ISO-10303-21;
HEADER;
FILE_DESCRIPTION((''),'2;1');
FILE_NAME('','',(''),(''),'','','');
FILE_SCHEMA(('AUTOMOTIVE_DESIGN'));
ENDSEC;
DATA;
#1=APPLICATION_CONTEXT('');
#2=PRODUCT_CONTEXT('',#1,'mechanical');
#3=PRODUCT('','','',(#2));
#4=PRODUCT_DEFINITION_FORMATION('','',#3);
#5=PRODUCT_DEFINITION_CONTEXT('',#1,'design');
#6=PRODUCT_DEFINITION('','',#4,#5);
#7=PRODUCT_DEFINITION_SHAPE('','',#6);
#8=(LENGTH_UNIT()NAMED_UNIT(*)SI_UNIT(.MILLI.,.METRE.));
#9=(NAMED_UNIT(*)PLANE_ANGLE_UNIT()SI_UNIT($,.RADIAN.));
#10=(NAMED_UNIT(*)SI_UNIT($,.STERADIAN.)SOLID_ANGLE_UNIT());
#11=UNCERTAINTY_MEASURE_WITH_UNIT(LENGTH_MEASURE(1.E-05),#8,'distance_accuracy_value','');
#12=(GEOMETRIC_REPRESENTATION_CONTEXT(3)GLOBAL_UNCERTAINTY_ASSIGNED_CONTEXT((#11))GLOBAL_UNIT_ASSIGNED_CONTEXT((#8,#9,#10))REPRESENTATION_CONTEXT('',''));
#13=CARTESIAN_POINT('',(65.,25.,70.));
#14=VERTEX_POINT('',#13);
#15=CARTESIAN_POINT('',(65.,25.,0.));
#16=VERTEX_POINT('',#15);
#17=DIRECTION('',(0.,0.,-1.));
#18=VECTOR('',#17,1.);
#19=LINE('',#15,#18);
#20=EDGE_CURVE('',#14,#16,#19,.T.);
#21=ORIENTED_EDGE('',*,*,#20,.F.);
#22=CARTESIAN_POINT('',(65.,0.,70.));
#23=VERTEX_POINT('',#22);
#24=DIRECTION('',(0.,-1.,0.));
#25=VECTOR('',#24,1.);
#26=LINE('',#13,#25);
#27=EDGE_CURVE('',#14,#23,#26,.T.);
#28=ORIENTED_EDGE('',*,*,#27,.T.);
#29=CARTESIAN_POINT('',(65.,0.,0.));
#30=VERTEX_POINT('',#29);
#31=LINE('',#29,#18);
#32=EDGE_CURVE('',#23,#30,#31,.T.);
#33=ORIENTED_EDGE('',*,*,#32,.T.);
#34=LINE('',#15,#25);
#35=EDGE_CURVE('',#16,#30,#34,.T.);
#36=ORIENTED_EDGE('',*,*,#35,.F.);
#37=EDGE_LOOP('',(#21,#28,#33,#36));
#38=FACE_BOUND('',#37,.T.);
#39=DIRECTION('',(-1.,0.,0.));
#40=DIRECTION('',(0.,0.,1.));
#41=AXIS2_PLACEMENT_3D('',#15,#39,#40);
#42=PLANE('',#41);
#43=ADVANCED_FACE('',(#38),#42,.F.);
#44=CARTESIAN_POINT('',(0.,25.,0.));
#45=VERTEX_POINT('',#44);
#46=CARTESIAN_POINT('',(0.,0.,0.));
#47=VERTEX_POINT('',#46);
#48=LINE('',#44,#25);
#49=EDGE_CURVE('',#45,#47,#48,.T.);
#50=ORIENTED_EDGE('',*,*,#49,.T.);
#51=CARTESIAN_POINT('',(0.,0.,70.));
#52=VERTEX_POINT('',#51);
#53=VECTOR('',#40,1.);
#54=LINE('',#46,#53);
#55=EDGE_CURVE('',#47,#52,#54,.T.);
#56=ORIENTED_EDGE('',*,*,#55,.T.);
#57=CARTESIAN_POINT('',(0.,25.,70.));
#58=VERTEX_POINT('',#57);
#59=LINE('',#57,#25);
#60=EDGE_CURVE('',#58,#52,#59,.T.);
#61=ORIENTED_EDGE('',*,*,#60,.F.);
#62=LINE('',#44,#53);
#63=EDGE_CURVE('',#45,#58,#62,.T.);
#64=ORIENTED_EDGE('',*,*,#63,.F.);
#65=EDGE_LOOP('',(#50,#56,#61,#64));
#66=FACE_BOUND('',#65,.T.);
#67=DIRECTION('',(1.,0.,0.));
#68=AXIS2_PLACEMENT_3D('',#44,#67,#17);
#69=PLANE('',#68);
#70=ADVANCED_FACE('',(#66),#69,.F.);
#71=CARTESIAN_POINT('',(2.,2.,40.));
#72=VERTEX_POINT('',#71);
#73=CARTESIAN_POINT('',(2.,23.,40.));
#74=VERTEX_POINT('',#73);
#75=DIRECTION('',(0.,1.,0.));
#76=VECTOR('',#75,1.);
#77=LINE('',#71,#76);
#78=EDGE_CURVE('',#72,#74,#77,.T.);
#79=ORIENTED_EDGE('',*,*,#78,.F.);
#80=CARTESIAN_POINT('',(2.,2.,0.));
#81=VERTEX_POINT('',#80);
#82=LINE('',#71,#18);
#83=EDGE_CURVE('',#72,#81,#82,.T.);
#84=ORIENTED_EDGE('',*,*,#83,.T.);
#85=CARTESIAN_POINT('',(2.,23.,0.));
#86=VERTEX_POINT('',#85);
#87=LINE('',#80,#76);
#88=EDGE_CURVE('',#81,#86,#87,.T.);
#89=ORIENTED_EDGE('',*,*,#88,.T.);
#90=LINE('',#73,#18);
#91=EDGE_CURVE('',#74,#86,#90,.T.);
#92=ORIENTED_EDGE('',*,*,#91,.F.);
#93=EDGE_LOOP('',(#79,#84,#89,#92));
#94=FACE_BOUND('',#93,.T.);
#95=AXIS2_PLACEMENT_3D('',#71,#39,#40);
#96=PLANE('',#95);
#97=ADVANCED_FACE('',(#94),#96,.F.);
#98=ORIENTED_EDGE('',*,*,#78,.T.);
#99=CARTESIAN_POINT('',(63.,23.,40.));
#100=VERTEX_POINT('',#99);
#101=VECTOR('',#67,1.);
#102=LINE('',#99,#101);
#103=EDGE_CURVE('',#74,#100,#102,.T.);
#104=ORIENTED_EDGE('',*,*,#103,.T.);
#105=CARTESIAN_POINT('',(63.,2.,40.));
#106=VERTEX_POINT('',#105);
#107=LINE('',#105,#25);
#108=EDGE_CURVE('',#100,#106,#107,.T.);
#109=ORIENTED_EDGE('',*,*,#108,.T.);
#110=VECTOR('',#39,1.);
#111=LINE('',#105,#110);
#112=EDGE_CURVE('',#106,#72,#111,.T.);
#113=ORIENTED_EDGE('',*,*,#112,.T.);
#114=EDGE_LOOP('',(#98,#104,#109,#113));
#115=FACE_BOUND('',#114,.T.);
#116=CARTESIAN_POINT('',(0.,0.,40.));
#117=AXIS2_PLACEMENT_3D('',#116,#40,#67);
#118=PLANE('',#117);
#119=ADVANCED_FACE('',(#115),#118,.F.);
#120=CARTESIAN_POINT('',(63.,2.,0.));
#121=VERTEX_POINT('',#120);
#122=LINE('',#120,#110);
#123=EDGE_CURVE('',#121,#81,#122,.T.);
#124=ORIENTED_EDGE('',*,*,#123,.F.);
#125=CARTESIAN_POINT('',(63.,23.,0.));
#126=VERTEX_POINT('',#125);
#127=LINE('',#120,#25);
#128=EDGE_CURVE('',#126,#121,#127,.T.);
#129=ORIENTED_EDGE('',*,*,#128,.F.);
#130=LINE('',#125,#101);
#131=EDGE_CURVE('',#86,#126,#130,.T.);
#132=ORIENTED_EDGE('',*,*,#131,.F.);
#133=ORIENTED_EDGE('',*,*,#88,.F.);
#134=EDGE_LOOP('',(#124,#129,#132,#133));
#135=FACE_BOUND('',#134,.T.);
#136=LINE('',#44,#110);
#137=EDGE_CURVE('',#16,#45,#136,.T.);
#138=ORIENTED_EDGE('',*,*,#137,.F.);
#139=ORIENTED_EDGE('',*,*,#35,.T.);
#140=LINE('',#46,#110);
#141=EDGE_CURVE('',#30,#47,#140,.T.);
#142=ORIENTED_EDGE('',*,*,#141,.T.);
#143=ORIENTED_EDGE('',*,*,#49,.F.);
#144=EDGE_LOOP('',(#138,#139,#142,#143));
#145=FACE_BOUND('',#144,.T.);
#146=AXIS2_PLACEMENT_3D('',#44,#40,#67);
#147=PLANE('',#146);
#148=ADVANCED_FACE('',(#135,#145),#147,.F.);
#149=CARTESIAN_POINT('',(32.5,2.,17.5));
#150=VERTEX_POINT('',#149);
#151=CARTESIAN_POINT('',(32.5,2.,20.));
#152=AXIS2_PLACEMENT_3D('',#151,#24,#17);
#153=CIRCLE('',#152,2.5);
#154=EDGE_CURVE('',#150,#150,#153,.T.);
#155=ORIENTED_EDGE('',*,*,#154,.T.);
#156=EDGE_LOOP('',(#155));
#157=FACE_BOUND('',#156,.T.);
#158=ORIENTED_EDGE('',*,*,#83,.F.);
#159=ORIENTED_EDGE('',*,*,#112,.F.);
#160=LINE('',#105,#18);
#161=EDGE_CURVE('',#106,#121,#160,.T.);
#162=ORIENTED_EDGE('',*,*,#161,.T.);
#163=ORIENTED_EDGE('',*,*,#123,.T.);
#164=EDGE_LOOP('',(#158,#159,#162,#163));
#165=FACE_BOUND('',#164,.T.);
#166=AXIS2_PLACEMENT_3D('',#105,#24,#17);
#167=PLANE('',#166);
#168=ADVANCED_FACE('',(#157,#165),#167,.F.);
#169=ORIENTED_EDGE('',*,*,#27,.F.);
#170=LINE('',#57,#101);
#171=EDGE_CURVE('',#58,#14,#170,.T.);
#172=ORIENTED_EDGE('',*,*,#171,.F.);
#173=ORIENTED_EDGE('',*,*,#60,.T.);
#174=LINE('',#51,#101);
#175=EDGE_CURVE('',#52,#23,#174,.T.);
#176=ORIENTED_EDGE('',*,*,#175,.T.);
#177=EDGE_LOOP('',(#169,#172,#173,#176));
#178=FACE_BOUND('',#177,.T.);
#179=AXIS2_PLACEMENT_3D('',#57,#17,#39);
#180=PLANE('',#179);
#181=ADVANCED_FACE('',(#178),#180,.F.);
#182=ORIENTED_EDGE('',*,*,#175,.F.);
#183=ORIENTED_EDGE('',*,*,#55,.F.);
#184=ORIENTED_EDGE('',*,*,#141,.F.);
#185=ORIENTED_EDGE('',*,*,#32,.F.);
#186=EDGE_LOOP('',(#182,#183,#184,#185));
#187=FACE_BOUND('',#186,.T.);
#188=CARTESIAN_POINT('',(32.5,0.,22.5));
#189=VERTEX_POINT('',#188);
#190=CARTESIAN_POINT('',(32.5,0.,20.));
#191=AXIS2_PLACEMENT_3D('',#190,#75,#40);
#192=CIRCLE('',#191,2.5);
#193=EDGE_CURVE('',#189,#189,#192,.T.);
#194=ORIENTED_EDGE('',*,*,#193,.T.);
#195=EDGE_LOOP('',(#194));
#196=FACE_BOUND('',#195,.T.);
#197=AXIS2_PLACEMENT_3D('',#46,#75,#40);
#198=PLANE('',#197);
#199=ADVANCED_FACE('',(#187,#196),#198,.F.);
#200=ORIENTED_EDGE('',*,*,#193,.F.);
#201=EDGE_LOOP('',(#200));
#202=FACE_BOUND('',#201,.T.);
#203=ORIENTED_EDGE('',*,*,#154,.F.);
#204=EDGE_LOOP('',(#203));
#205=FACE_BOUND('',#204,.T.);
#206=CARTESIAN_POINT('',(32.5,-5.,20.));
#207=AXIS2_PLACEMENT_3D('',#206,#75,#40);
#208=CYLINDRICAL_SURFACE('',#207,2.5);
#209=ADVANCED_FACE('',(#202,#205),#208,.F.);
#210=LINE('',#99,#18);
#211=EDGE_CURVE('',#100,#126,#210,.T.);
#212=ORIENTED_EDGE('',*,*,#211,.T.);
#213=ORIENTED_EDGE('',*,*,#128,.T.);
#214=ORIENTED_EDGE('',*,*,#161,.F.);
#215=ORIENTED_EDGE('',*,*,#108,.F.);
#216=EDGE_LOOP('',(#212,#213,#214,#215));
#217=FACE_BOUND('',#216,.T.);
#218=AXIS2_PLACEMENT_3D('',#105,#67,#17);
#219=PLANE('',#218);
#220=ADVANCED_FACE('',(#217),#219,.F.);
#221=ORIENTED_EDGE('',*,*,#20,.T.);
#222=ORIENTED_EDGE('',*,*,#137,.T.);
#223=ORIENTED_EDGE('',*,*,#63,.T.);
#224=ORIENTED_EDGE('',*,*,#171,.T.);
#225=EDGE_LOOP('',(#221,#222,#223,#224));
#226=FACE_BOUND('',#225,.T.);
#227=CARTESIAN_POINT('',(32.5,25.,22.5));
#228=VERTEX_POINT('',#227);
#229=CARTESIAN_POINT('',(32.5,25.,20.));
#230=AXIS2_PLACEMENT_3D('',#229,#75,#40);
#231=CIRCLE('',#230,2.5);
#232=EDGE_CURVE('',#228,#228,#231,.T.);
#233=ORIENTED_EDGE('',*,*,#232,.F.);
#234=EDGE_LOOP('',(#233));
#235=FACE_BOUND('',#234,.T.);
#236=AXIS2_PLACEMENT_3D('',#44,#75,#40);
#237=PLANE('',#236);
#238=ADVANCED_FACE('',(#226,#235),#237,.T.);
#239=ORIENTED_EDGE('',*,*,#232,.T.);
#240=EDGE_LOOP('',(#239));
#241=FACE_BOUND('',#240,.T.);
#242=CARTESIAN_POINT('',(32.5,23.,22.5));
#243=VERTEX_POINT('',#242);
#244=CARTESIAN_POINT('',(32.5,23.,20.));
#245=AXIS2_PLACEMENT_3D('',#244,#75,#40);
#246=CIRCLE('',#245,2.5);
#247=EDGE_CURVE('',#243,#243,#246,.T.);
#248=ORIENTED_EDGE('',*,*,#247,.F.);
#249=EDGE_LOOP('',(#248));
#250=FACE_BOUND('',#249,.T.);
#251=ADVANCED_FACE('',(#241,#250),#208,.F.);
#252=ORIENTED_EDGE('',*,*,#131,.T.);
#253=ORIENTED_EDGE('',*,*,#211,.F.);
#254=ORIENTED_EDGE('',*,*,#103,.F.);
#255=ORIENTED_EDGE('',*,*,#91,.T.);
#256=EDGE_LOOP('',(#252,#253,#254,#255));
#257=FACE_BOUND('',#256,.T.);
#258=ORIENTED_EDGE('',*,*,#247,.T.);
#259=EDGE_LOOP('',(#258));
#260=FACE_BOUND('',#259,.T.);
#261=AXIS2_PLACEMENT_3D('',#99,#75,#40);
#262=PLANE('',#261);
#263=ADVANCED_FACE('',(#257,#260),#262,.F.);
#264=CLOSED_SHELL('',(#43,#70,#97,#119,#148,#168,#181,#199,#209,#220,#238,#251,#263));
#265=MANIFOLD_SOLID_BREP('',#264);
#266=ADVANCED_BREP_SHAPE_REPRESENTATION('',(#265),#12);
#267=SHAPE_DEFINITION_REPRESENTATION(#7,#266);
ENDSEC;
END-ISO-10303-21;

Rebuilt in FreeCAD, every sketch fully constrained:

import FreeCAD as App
import Part
import Sketcher
from FreeCAD import Vector


def add_polygon(sketch, points):
    """Adds a closed chain of lines whose ends are joined by coincident constraints."""
    first, n = sketch.GeometryCount, len(points)
    for a, b in zip(points, points[1:] + points[:1]):
        sketch.addGeometry(Part.LineSegment(App.Vector(*a, 0), App.Vector(*b, 0)), False)
    for i in range(n):
        sketch.addConstraint(Sketcher.Constraint("Coincident", first + i, 2, first + (i + 1) % n, 1))

doc = App.newDocument("Part")
body = doc.addObject("PartDesign::Body", "Body")

# Sketch on XZ plane
sketch1 = body.newObject("Sketcher::SketchObject", "Sketch")
sketch1.AttachmentSupport = (doc.getObject("XZ_Plane"), [""])
sketch1.MapMode = "FlatFace"
add_polygon(sketch1, [(0, 0), (0, 70), (65, 70), (65, 0)])  # lines 0-3
sketch1.addConstraint([
    Sketcher.Constraint("Vertical", 0),
    Sketcher.Constraint("Horizontal", 1),
    Sketcher.Constraint("Vertical", 2),
    Sketcher.Constraint("Horizontal", 3),
    Sketcher.Constraint("Coincident", 3, 2, -1, 1),
    Sketcher.Constraint("DistanceX", 1, 1, 1, 2, 65.0),
    Sketcher.Constraint("DistanceY", 0, 1, 0, 2, 70.0),
])
pad1 = body.newObject("PartDesign::Pad", "Pad")
pad1.Profile = sketch1
pad1.Length = 25
pad1.Reversed = True

# Sketch on XY plane
sketch2 = body.newObject("Sketcher::SketchObject", "Sketch001")
sketch2.AttachmentSupport = (doc.getObject("XY_Plane"), [""])
sketch2.MapMode = "FlatFace"
add_polygon(sketch2, [(63, 23), (63, 2), (2, 2), (2, 23)])  # lines 0-3
sketch2.addConstraint([
    Sketcher.Constraint("Vertical", 0),
    Sketcher.Constraint("Horizontal", 1),
    Sketcher.Constraint("Vertical", 2),
    Sketcher.Constraint("Horizontal", 3),
    Sketcher.Constraint("DistanceX", 1, 2, 1, 1, 61.0),
    Sketcher.Constraint("DistanceY", 0, 2, 0, 1, 21.0),
    Sketcher.Constraint("DistanceX", -1, 1, 0, 2, 63.0),
    Sketcher.Constraint("DistanceY", -1, 1, 0, 2, 2.0),
])
pocket1 = body.newObject("PartDesign::Pocket", "Pocket")
pocket1.Profile = sketch2
pocket1.Length = 40
pocket1.Reversed = True

# Sketch on XZ plane
sketch3 = body.newObject("Sketcher::SketchObject", "Sketch002")
sketch3.AttachmentSupport = (doc.getObject("XZ_Plane"), [""])
sketch3.MapMode = "FlatFace"
sketch3.AttachmentOffset = App.Placement(Vector(0, 0, -25), App.Rotation())
sketch3.addGeometry(Part.Circle(Vector(32.5, 20, 0), Vector(0, 0, 1), 2.5), False)
sketch3.addConstraint([
    Sketcher.Constraint("Diameter", 0, 5.0),
    Sketcher.Constraint("DistanceY", -1, 1, 0, 3, 20.0),
    Sketcher.Constraint("DistanceX", -1, 1, 0, 3, 32.5),
])
pocket2 = body.newObject("PartDesign::Pocket", "Pocket001")
pocket2.Profile = sketch3
pocket2.Length = 30
pocket2.Reversed = True

doc.recompute()
